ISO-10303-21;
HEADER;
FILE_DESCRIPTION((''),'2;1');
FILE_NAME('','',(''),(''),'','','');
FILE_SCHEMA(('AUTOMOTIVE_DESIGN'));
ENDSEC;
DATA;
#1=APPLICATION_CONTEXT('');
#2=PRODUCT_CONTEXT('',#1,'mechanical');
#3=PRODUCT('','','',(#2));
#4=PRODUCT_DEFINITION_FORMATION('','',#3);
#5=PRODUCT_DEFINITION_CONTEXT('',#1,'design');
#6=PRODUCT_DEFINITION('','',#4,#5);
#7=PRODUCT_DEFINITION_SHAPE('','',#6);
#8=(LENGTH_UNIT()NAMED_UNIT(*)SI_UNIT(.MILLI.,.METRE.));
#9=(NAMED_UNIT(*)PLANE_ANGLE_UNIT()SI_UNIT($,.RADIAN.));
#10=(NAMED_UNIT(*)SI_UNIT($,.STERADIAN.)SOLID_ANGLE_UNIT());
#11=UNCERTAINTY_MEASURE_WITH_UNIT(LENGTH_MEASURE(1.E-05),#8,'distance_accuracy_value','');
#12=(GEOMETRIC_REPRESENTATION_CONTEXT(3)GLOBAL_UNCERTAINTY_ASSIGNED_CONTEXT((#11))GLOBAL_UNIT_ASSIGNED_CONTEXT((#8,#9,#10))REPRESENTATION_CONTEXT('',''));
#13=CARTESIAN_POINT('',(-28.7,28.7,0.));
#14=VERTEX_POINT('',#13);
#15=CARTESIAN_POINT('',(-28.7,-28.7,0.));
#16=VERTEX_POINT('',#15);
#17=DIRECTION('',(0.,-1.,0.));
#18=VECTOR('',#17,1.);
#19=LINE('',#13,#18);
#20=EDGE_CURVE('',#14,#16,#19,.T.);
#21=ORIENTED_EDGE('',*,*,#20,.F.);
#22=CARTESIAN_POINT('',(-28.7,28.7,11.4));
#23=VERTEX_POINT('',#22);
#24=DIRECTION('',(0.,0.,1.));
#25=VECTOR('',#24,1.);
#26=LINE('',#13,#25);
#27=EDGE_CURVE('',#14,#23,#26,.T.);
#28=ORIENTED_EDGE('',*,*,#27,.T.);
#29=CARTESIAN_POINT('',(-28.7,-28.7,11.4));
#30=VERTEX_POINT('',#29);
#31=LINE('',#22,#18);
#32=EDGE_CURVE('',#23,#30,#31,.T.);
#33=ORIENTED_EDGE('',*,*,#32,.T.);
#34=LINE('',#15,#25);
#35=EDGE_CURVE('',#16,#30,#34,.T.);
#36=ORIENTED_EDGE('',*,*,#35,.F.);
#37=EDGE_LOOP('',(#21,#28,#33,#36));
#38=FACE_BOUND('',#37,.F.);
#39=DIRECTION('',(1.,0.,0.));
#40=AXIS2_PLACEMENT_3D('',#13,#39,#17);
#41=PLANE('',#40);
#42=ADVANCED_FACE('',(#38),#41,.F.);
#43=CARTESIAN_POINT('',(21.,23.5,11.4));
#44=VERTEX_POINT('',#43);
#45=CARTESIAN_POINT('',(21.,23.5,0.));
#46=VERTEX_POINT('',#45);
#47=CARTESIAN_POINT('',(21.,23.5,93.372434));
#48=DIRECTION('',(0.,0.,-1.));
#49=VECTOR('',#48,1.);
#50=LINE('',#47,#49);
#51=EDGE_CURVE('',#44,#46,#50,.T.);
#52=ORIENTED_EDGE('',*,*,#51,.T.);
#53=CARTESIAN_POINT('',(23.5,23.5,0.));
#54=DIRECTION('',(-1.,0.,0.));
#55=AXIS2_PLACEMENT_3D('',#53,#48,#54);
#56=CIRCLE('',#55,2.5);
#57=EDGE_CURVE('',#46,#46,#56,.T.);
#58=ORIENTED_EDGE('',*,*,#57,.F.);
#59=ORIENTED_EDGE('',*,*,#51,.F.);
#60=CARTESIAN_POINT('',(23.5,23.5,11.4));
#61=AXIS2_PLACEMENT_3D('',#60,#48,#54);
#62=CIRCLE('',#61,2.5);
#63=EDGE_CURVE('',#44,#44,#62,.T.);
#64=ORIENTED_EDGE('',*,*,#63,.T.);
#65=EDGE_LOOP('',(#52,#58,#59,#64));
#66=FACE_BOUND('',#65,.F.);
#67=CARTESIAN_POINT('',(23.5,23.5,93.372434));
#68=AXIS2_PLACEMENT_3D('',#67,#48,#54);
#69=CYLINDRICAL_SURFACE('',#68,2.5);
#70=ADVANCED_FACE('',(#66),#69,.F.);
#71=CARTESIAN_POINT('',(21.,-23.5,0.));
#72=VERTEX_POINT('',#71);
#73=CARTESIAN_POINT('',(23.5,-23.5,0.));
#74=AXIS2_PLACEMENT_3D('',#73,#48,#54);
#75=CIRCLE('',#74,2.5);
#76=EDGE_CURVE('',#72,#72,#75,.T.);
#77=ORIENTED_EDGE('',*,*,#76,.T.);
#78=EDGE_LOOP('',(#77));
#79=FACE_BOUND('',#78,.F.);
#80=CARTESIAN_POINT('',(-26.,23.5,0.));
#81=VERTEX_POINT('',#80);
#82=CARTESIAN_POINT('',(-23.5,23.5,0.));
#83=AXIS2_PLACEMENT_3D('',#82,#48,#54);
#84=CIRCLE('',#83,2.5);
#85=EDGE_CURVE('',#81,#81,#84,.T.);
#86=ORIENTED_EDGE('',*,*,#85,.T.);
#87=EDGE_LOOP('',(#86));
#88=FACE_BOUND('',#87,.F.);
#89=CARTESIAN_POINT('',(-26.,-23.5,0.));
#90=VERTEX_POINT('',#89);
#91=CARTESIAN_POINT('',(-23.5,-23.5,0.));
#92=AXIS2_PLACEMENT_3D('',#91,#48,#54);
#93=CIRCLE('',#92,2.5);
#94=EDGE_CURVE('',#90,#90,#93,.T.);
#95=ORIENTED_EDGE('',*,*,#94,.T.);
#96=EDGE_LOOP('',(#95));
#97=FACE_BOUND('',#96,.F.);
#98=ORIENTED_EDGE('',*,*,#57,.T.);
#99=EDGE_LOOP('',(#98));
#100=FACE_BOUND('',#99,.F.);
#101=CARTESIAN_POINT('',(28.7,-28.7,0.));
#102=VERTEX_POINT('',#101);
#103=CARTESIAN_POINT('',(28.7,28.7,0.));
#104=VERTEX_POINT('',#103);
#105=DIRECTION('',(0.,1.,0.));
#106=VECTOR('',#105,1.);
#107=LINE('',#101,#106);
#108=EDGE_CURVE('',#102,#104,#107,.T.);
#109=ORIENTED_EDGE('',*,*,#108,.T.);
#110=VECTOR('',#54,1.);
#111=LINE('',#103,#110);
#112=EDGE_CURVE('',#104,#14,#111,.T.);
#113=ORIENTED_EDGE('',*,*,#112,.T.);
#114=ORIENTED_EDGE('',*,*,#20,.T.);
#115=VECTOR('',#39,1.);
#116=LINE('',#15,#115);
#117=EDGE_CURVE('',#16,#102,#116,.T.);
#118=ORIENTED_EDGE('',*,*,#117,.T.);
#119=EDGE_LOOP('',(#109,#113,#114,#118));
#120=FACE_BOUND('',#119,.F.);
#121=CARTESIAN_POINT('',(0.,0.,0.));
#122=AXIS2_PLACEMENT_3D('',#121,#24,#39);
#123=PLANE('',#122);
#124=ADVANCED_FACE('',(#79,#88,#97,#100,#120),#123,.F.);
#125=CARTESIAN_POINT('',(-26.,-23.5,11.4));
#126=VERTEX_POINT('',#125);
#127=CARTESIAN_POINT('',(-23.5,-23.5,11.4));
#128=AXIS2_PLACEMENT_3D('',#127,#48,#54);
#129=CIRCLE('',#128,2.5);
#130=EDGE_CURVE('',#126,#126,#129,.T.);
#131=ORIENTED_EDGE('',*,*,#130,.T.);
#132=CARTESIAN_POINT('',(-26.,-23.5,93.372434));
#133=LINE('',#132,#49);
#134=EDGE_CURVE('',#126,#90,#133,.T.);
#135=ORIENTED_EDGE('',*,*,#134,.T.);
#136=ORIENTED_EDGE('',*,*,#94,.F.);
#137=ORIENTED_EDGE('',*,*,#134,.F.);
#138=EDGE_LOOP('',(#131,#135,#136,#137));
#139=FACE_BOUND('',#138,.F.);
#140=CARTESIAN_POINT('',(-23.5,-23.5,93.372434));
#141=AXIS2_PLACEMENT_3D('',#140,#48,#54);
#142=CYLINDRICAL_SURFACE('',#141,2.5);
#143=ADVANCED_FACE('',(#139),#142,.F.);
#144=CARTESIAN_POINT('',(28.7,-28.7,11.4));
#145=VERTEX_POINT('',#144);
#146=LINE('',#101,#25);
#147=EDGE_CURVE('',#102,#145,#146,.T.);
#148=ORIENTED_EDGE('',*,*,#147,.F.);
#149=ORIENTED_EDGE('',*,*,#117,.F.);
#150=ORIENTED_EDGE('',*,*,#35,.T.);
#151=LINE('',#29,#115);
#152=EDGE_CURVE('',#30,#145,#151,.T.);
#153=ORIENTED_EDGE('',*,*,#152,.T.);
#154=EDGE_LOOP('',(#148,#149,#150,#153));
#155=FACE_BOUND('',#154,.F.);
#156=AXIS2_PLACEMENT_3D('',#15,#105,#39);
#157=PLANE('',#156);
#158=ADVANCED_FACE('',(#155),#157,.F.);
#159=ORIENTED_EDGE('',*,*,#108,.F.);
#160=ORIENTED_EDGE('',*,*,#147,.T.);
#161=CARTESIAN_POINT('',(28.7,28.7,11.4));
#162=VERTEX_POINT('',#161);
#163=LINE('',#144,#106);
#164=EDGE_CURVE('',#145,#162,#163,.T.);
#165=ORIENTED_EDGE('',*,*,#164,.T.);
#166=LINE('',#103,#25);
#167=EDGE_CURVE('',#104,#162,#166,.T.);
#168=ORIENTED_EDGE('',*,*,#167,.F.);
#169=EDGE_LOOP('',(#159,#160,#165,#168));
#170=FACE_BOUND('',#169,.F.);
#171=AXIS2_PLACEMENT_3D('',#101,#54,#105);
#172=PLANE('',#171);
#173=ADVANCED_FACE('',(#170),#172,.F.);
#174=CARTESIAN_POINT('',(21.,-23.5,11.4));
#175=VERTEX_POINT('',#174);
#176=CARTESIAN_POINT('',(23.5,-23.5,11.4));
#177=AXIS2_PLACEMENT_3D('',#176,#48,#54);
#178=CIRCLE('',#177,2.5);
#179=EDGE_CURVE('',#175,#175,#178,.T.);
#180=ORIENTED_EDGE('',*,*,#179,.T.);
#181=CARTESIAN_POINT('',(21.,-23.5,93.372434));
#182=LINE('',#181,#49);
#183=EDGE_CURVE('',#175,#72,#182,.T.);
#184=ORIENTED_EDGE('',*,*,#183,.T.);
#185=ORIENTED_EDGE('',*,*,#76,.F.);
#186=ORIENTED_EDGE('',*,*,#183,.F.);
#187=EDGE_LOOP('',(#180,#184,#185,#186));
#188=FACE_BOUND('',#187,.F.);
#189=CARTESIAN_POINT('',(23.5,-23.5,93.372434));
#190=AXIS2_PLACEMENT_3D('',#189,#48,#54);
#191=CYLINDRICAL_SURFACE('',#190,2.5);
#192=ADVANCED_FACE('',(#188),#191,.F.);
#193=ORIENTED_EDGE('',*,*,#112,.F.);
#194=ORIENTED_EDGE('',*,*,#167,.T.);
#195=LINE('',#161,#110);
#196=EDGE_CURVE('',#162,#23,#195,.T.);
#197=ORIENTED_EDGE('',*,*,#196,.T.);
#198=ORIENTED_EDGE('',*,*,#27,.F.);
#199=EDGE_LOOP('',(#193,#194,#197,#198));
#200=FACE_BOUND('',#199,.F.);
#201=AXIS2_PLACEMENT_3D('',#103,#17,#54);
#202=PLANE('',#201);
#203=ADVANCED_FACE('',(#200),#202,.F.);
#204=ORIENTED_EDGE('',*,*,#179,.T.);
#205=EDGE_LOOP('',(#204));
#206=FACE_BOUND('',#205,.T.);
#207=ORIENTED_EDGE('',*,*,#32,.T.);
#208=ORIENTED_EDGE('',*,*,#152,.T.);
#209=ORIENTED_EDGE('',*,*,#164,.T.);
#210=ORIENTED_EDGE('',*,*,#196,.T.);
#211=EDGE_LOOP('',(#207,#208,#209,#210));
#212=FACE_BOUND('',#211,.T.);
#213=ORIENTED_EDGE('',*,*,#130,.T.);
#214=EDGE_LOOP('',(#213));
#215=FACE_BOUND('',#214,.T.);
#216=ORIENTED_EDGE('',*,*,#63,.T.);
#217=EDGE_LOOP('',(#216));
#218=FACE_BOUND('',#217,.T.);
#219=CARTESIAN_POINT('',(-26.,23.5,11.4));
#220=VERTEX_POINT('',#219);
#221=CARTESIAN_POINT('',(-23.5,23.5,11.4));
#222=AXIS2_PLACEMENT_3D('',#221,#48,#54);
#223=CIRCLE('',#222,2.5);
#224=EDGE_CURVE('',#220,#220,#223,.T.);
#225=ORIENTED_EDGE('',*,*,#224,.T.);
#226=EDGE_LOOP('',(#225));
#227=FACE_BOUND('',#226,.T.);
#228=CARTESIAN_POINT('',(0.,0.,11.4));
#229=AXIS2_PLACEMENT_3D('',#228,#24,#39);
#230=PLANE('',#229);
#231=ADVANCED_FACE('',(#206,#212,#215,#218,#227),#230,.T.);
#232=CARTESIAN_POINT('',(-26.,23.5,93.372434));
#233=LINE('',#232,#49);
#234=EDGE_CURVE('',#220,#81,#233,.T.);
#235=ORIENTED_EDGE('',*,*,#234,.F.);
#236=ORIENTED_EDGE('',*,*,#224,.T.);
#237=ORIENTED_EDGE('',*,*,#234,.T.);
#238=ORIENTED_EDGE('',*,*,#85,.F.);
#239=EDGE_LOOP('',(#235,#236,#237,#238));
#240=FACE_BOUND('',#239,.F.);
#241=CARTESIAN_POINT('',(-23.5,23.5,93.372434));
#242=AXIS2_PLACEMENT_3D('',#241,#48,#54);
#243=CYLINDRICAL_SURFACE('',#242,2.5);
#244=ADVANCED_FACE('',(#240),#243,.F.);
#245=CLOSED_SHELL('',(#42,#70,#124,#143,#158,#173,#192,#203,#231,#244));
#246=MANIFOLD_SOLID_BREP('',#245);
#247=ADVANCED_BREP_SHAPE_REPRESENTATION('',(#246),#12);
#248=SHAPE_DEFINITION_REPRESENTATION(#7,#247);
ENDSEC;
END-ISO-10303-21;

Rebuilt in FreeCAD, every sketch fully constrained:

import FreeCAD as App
import Part
import Sketcher
Q = App.Units.Quantity


def add_polygon(sketch, points):
    """Adds a closed chain of lines whose ends are joined by coincident constraints."""
    first, n = sketch.GeometryCount, len(points)
    for a, b in zip(points, points[1:] + points[:1]):
        sketch.addGeometry(Part.LineSegment(App.Vector(*a, 0), App.Vector(*b, 0)), False)
    for i in range(n):
        sketch.addConstraint(Sketcher.Constraint("Coincident", first + i, 2, first + (i + 1) % n, 1))

doc = App.newDocument("Part")
params = doc.addObject("Spreadsheet::Sheet", "Params")
for row, (alias, value) in enumerate([
    ("sketch1_width", "57.4 mm"),
    ("pad1_length", "11.4 mm"),
    ("sketch2_diameter", "5 mm"),
    ("hole_diameter", "5 mm"),
], start=1):
    params.set(f"A{row}", alias)
    params.set(f"B{row}", "=" + value)
    params.setAlias(f"B{row}", alias)

body = doc.addObject("PartDesign::Body", "Body")

# Sketch on XY plane
sketch1 = doc.addObject("Sketcher::SketchObject", "Sketch")
body.addObject(sketch1)
sketch1.AttachmentSupport = (doc.XY_Plane, [""])
sketch1.MapMode = "FlatFace"
add_polygon(sketch1, [(29, -29), (29, 29), (-29, 29), (-29, -29)])  # lines 0-3
sketch1.addConstraint([
    Sketcher.Constraint("Vertical", 0),
    Sketcher.Constraint("Horizontal", 1),
    Sketcher.Constraint("Vertical", 2),
    Sketcher.Constraint("Horizontal", 3),
    Sketcher.Constraint("Symmetric", 0, 2, 2, 2, -1, 1),
    Sketcher.Constraint("Equal", 3, 0),
    Sketcher.Constraint("DistanceX", 1, 2, 1, 1, Q("57.4 mm")),
])
sketch1.setExpression("Constraints[10]", "Params.sketch1_width")
pad1 = doc.addObject("PartDesign::Pad", "Pad")
body.addObject(pad1)
pad1.Profile = sketch1
pad1.setExpression("Length", "Params.pad1_length")

# Sketch on XY plane
sketch2 = doc.addObject("Sketcher::SketchObject", "Sketch001")
body.addObject(sketch2)
sketch2.AttachmentSupport = (doc.XY_Plane, [""])
sketch2.MapMode = "FlatFace"
sketch2.AttachmentOffset = App.Placement(App.Vector(0, 0, 11.4), App.Rotation())
sketch2.addGeometry([
    Part.Circle(App.Vector(-23.5, 23.5, 0), App.Vector(0, 0, 1), 2.5),
    Part.Circle(App.Vector(23.5, 23.5, 0), App.Vector(0, 0, 1), 2.5),
    Part.Circle(App.Vector(23.5, -23.5, 0), App.Vector(0, 0, 1), 2.5),
    Part.Circle(App.Vector(-23.5, -23.5, 0), App.Vector(0, 0, 1), 2.5),
], False)
sketch2.addConstraint([
    Sketcher.Constraint("Equal", 0, 1),
    Sketcher.Constraint("Equal", 1, 2),
    Sketcher.Constraint("Equal", 2, 3),
    Sketcher.Constraint("Symmetric", 0, 3, 2, 3, -1, 1),
    Sketcher.Constraint("Symmetric", 1, 3, 3, 3, -1, 1),
    Sketcher.Constraint("Symmetric", 0, 3, 1, 3, -2),
    Sketcher.Constraint("Diameter", 0, Q("5 mm")),
    Sketcher.Constraint("DistanceX", 0, 3, 1, 3, Q("47 mm")),
    Sketcher.Constraint("DistanceY", 2, 3, 1, 3, Q("47 mm")),
])
sketch2.setExpression("Constraints[6]", "Params.sketch2_diameter")
doc.recompute()
hole = doc.addObject("PartDesign::Hole", "Hole")
body.addObject(hole)
hole.Profile = sketch2
hole.ThreadType = "None"
hole.setExpression("Diameter", "Params.hole_diameter")
hole.DepthType = "ThroughAll"

doc.recompute()
